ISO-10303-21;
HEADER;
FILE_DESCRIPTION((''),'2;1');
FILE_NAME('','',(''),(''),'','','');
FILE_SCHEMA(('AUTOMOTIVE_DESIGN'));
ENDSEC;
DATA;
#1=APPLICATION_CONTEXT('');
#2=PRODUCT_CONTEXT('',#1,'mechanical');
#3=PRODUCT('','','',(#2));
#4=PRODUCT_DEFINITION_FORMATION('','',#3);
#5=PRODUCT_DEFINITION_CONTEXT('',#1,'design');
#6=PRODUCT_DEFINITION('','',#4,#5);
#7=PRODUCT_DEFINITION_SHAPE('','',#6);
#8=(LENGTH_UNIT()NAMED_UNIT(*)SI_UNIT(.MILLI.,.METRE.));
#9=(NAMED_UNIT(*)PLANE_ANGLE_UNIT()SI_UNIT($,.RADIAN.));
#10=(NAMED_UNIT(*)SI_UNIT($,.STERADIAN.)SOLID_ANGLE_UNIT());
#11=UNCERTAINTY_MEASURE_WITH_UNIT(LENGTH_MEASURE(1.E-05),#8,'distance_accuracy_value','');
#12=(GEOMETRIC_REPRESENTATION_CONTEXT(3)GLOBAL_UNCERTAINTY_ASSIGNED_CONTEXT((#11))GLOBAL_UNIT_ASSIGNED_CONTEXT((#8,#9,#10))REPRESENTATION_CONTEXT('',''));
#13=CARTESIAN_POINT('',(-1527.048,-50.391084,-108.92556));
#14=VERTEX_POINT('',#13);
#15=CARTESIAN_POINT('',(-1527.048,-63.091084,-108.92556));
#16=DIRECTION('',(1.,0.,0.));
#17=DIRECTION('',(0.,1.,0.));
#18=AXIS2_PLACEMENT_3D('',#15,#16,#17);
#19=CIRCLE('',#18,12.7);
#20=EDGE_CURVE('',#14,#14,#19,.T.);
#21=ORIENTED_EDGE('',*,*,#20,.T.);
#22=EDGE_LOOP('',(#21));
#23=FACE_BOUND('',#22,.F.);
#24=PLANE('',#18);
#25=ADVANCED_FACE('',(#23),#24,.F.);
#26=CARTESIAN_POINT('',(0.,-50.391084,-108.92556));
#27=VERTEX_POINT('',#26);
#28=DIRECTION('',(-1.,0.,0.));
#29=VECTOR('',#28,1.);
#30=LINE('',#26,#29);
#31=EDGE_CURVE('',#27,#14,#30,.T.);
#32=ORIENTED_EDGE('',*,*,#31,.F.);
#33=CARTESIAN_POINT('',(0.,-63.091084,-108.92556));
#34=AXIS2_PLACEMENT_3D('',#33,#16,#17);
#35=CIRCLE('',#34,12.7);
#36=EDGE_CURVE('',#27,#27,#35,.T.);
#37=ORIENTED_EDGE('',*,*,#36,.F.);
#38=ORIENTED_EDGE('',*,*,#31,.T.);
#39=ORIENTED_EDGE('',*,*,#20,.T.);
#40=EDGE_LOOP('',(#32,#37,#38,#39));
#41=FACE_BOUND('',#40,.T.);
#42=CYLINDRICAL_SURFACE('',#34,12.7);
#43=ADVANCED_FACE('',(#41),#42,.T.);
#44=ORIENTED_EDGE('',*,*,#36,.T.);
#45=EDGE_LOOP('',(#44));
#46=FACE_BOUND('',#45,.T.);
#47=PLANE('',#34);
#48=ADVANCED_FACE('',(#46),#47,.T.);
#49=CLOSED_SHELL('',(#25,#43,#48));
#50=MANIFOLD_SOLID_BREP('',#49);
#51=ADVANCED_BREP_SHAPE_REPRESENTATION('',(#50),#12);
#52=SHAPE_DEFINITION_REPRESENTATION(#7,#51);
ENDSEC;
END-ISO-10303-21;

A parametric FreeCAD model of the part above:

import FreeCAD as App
import Part
import Sketcher
Q = App.Units.Quantity

doc = App.newDocument("Part")
params = doc.addObject("Spreadsheet::Sheet", "Params")
for row, (alias, value) in enumerate([
    ("sketch1_diameter", "1 in"),
    ("pad1_length", "60.12 in"),
], start=1):
    params.set(f"A{row}", alias)
    params.set(f"B{row}", "=" + value)
    params.setAlias(f"B{row}", alias)

body = doc.addObject("PartDesign::Body", "Body")

sketch1 = doc.addObject("Sketcher::SketchObject", "Sketch")
body.addObject(sketch1)
sketch1.AttachmentSupport = (doc.YZ_Plane, [""])
sketch1.MapMode = "FlatFace"
sketch1.addGeometry(Part.Circle(App.Vector(-63, -109, 0), App.Vector(0, 0, 1), 13), False)
sketch1.addConstraint([
    Sketcher.Constraint("Diameter", 0, Q("1 in")),
    Sketcher.Constraint("DistanceY", 0, 3, -1, 1, 108.92556),
    Sketcher.Constraint("DistanceX", 0, 3, -1, 1, 63.091084),
])
sketch1.setExpression("Constraints[0]", "Params.sketch1_diameter")
pad1 = doc.addObject("PartDesign::Pad", "Pad")
body.addObject(pad1)
pad1.Profile = sketch1
pad1.setExpression("Length", "Params.pad1_length")
pad1.Reversed = True

doc.recompute()
